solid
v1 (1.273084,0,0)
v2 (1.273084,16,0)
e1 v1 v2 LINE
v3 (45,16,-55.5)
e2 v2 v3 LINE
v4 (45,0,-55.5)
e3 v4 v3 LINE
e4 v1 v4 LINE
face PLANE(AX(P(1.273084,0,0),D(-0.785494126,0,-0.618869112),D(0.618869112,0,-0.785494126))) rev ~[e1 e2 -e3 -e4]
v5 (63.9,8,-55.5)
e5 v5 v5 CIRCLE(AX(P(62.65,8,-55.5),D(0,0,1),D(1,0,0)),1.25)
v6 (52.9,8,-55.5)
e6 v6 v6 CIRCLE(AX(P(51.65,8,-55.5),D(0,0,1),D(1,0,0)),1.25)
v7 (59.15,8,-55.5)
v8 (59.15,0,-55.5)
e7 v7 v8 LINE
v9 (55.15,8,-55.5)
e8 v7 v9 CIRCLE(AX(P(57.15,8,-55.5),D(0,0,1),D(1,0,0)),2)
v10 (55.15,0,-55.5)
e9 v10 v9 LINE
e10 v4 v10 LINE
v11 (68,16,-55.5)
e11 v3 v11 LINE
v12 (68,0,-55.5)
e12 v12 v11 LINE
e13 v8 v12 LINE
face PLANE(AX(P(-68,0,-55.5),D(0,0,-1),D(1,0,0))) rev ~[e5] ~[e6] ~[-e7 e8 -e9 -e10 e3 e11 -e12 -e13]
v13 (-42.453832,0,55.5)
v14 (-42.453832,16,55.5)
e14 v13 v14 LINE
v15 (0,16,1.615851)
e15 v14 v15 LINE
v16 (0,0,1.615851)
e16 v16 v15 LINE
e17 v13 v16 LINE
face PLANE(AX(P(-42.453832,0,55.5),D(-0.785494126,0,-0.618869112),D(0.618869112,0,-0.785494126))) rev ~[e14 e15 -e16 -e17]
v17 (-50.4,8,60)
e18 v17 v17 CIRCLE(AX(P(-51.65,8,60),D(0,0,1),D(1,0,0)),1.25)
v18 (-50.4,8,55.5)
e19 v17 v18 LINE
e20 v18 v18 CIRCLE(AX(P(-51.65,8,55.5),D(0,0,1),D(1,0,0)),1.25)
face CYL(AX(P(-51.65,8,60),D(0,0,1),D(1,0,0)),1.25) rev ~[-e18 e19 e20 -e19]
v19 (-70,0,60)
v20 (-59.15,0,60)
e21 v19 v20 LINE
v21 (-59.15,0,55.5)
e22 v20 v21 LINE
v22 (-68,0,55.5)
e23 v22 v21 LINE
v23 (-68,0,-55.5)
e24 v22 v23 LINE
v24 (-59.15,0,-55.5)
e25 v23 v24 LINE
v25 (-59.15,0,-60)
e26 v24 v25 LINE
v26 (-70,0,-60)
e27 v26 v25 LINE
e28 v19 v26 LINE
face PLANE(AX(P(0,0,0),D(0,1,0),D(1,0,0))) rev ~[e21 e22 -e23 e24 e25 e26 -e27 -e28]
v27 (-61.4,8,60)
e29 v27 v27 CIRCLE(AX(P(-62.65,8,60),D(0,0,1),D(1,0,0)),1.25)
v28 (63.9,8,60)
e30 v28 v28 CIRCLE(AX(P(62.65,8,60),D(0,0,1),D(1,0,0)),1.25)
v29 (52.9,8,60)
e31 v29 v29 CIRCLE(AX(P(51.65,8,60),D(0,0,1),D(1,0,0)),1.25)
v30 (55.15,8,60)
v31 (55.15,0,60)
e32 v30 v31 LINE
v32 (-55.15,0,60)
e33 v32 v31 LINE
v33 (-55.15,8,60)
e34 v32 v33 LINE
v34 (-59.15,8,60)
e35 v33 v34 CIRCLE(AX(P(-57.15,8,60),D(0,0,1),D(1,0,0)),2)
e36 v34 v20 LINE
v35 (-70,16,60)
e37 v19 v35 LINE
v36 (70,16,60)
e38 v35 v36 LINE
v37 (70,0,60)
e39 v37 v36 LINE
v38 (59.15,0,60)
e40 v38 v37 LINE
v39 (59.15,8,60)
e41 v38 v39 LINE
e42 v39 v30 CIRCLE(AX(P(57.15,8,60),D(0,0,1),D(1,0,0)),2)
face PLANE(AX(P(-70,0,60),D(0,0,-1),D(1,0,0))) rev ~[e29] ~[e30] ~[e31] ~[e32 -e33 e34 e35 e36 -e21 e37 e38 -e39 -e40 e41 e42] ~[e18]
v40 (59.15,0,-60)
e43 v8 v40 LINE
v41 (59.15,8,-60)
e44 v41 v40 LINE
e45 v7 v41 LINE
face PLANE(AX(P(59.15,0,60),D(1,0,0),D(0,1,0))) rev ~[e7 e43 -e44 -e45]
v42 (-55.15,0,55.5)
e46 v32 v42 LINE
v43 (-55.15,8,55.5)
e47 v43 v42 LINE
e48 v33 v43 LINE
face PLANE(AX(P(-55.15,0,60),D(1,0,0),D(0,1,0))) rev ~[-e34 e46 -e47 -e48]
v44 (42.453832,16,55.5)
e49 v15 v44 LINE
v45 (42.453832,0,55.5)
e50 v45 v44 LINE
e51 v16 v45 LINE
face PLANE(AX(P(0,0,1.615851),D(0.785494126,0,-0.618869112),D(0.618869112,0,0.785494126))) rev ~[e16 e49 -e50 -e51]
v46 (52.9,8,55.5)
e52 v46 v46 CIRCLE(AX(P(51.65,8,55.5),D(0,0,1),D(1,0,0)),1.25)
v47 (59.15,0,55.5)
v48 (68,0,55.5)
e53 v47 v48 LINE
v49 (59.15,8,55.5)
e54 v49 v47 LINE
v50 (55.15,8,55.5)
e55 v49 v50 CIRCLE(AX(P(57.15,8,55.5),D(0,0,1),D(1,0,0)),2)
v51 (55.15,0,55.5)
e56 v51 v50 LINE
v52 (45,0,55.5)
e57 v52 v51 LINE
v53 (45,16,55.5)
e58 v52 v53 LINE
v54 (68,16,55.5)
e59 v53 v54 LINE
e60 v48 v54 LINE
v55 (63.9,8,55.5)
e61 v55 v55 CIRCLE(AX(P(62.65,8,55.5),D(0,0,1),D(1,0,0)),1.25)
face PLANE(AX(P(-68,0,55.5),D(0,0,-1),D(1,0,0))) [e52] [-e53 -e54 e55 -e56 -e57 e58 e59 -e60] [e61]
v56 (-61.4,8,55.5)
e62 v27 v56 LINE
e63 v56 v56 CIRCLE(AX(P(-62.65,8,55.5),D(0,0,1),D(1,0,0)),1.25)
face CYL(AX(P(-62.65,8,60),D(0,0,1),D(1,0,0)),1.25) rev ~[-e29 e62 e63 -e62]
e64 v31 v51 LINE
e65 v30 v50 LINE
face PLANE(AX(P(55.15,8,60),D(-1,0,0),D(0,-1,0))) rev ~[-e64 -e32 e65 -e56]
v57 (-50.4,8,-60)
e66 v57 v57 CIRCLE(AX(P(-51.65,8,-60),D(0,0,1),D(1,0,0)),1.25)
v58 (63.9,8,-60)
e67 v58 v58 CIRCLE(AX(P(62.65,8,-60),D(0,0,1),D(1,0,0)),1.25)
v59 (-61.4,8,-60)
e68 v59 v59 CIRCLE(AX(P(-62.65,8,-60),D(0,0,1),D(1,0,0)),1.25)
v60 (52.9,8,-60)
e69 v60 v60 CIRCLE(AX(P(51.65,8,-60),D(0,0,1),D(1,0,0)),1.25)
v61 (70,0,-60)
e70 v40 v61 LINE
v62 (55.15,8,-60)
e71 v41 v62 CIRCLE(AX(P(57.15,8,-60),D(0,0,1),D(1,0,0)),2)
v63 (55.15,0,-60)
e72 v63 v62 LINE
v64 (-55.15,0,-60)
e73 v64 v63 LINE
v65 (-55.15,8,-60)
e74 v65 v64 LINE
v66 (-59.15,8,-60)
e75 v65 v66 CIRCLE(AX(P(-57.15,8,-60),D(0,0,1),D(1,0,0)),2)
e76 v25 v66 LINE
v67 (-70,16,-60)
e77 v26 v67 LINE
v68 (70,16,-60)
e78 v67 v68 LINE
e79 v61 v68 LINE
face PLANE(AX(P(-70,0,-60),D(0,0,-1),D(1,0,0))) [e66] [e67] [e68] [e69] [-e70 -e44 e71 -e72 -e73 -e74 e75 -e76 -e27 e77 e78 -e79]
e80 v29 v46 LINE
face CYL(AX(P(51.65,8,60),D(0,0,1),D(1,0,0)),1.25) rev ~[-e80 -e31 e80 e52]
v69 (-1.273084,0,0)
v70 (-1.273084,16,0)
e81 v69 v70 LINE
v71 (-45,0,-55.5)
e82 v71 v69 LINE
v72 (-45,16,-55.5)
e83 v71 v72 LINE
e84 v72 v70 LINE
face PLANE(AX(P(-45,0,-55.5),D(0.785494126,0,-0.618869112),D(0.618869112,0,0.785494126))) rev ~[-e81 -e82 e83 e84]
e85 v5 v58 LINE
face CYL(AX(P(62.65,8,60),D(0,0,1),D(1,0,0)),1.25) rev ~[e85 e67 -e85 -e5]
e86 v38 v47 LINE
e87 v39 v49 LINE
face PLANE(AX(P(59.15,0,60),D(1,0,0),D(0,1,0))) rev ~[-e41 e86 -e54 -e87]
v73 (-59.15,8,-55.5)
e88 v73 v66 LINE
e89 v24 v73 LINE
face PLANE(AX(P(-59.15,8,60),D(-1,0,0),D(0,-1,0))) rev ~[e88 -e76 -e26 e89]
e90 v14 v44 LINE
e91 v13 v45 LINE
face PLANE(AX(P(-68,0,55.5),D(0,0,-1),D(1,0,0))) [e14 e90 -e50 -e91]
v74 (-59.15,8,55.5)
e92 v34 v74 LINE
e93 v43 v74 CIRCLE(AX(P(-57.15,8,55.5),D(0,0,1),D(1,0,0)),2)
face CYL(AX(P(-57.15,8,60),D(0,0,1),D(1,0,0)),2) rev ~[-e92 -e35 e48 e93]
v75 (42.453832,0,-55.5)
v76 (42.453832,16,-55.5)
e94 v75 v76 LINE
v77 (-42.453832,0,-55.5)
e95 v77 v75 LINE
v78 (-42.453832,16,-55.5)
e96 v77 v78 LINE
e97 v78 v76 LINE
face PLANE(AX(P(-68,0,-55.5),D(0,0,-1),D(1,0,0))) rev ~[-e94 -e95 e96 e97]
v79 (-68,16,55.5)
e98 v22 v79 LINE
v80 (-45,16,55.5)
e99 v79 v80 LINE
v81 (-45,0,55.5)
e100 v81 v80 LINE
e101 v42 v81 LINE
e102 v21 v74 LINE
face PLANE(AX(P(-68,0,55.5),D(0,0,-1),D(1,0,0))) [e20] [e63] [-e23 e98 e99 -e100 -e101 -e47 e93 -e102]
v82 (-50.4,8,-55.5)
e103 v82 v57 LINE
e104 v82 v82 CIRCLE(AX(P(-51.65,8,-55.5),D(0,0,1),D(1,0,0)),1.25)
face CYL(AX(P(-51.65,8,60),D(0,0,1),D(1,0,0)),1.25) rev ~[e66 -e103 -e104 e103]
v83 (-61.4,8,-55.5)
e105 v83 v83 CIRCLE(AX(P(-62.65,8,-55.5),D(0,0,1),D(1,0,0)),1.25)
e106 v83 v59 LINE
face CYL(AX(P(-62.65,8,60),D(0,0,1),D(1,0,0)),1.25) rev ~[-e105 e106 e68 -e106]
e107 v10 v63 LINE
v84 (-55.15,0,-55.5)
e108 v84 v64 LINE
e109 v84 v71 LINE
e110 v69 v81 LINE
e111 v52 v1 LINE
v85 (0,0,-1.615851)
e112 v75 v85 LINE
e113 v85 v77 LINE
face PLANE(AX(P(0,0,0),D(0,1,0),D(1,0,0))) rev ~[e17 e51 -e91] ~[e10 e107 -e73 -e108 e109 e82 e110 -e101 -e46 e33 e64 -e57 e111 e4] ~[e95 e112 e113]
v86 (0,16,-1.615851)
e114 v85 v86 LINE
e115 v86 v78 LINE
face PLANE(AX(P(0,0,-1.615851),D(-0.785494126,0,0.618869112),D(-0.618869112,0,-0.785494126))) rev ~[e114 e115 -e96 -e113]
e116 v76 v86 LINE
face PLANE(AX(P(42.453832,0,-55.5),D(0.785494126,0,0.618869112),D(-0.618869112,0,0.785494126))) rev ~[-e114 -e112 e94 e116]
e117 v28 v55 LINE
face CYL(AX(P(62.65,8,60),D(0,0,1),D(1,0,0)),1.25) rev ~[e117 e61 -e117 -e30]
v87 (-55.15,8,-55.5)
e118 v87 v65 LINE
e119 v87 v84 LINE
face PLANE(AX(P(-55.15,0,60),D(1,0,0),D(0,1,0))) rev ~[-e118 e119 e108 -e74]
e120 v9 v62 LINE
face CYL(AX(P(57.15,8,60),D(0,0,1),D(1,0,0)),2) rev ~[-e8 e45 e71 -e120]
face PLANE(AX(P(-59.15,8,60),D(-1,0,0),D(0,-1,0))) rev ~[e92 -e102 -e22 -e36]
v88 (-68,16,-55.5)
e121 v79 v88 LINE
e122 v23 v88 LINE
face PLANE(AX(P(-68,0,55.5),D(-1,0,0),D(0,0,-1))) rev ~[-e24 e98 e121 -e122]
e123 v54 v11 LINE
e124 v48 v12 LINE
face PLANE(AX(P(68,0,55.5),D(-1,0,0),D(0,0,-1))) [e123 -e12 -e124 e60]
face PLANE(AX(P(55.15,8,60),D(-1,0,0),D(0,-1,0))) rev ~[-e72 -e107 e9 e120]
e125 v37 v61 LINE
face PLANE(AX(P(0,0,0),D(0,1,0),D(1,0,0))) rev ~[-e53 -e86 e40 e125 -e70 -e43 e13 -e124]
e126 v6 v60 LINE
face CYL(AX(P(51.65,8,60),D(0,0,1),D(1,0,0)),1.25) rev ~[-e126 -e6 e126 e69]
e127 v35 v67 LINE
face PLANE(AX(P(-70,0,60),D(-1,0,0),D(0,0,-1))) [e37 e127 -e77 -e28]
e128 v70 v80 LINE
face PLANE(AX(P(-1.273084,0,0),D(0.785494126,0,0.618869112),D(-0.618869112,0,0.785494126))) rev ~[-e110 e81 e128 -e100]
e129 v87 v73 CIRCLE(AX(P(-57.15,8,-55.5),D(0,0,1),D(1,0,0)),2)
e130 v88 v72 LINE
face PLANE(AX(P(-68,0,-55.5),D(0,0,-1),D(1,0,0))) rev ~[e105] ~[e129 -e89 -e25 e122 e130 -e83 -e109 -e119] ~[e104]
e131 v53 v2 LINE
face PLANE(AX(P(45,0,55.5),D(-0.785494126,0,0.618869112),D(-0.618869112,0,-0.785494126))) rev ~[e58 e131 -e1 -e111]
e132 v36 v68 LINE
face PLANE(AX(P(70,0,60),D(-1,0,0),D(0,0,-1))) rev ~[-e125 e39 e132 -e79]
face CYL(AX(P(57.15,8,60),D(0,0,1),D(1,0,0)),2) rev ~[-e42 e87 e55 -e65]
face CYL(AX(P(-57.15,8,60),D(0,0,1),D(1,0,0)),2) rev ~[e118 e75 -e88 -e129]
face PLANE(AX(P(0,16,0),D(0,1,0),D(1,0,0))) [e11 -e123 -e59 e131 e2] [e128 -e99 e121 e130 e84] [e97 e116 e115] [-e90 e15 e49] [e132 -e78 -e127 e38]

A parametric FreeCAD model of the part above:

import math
import FreeCAD as App
import Part
import Sketcher
from FreeCAD import Vector


def add_polygon(sketch, points):
    """Adds a closed chain of lines whose ends are joined by coincident constraints."""
    first, n = sketch.GeometryCount, len(points)
    for a, b in zip(points, points[1:] + points[:1]):
        sketch.addGeometry(Part.LineSegment(App.Vector(*a, 0), App.Vector(*b, 0)), False)
    for i in range(n):
        sketch.addConstraint(Sketcher.Constraint("Coincident", first + i, 2, first + (i + 1) % n, 1))

doc = App.newDocument("Part")
body = doc.addObject("PartDesign::Body", "Body")

sketch1 = doc.addObject("Sketcher::SketchObject", "Sketch")
body.addObject(sketch1)
sketch1.AttachmentSupport = (doc.XZ_Plane, [""])
sketch1.MapMode = "FlatFace"
add_polygon(sketch1, [(-70, -60), (-70, 60), (70, 60), (70, -60)])
add_polygon(sketch1, [(-45, 56), (-68, 56), (-68, -56), (-45, -56), (-1, 0)])
add_polygon(sketch1, [(42, 56), (-42, 56), (0, 2)])
add_polygon(sketch1, [(68, 56), (45, 56), (1, 0), (45, -56), (68, -56)])
add_polygon(sketch1, [(-42, -56), (42, -56), (0, -2)])
sketch1.addConstraint([
    Sketcher.Constraint("Vertical", 0),
    Sketcher.Constraint("Horizontal", 1),
    Sketcher.Constraint("Vertical", 2),
    Sketcher.Constraint("Horizontal", 3),
    Sketcher.Constraint("Horizontal", 4),
    Sketcher.Constraint("Vertical", 5),
    Sketcher.Constraint("Horizontal", 6),
    Sketcher.Constraint("Horizontal", 9),
    Sketcher.Constraint("Horizontal", 12),
    Sketcher.Constraint("Horizontal", 15),
    Sketcher.Constraint("Vertical", 16),
    Sketcher.Constraint("Horizontal", 17),
    Sketcher.Constraint("Symmetric", 0, 2, 2, 2, -1, 1),
    Sketcher.Constraint("Symmetric", 6, 2, 12, 2, -1, 1),
    Sketcher.Constraint("Symmetric", 7, 2, 13, 2, -1, 1),
    Sketcher.Constraint("Symmetric", 8, 2, 14, 2, -1, 1),
    Sketcher.Constraint("Symmetric", 9, 2, 17, 2, -1, 1),
    Sketcher.Constraint("Symmetric", 10, 2, 18, 2, -1, 1),
    Sketcher.Constraint("Symmetric", 8, 2, 12, 2, -2),
    Sketcher.Constraint("PointOnObject", 7, 2, -1),
    Sketcher.Constraint("PointOnObject", 10, 2, -2),
    Sketcher.Constraint("Parallel", 8, 10),
    Sketcher.Constraint("Parallel", 7, 11),
    Sketcher.Constraint("Parallel", 13, 19),
    Sketcher.Constraint("Horizontal", 8, 2, 9, 2),
    Sketcher.Constraint("Equal", 6, 12),
    Sketcher.Constraint("DistanceX", 1, 1, 1, 2, 140.0),
    Sketcher.Constraint("DistanceX", 4, 2, 4, 1, 23.0),
    Sketcher.Constraint("DistanceY", 0, 1, 0, 2, 120.0),
    Sketcher.Constraint("DistanceY", 5, 2, 5, 1, 111.0),
    Sketcher.Constraint("DistanceX", 4, 2, -1, 1, 68.0),
    Sketcher.Constraint("DistanceY", 18, 2, 10, 2, 3.231701),
    Sketcher.Constraint("Distance", 7, 70.656162),
])
pad1 = doc.addObject("PartDesign::Pad", "Pad")
body.addObject(pad1)
pad1.Profile = sketch1
pad1.Length = 16
pad1.Reversed = True

sketch2 = doc.addObject("Sketcher::SketchObject", "Sketch001")
body.addObject(sketch2)
sketch2.AttachmentSupport = (doc.XY_Plane, [""])
sketch2.MapMode = "FlatFace"
sketch2.AttachmentOffset = App.Placement(Vector(0, 0, 60), App.Rotation())
sketch2.addGeometry([
    Part.ArcOfCircle(Part.Circle(Vector(-57.1, 8, 0), Vector(0, 0, 1), 2), math.radians(0), math.radians(180)),
    Part.LineSegment(Vector(-59.1, 8, 0), Vector(-59.1, 0, 0)),
    Part.LineSegment(Vector(-59.1, 0, 0), Vector(-55.1, 0, 0)),
    Part.LineSegment(Vector(-55.1, 0, 0), Vector(-55.1, 8, 0)),
    Part.Circle(Vector(-51.6, 8, 0), Vector(0, 0, 1), 1.2),
    Part.Circle(Vector(-62.6, 8, 0), Vector(0, 0, 1), 1.2),
    Part.LineSegment(Vector(55.1, 8, 0), Vector(55.1, 0, 0)),
    Part.LineSegment(Vector(55.1, 0, 0), Vector(59.1, 0, 0)),
    Part.LineSegment(Vector(59.1, 0, 0), Vector(59.1, 8, 0)),
    Part.ArcOfCircle(Part.Circle(Vector(57.1, 8, 0), Vector(0, 0, 1), 2), math.radians(0), math.radians(180)),
    Part.Circle(Vector(51.6, 8, 0), Vector(0, 0, 1), 1.2),
    Part.Circle(Vector(62.6, 8, 0), Vector(0, 0, 1), 1.2),
], False)
sketch2.addConstraint([
    Sketcher.Constraint("Tangent", 0, 2, 1, 1),
    Sketcher.Constraint("Coincident", 1, 2, 2, 1),
    Sketcher.Constraint("Coincident", 2, 2, 3, 1),
    Sketcher.Constraint("Tangent", 3, 2, 0, 1),
    Sketcher.Constraint("Coincident", 6, 2, 7, 1),
    Sketcher.Constraint("Coincident", 7, 2, 8, 1),
    Sketcher.Constraint("Tangent", 8, 2, 9, 1),
    Sketcher.Constraint("Tangent", 9, 2, 6, 1),
    Sketcher.Constraint("Vertical", 1),
    Sketcher.Constraint("Horizontal", 2),
    Sketcher.Constraint("Vertical", 3),
    Sketcher.Constraint("Vertical", 6),
    Sketcher.Constraint("Horizontal", 7),
    Sketcher.Constraint("Vertical", 8),
    Sketcher.Constraint("Equal", 4, 5),
    Sketcher.Constraint("Equal", 0, 9),
    Sketcher.Constraint("Equal", 5, 10),
    Sketcher.Constraint("Equal", 10, 11),
    Sketcher.Constraint("Symmetric", 2, 2, 6, 2, -1, 1),
    Sketcher.Constraint("Symmetric", 4, 3, 10, 3, -2),
    Sketcher.Constraint("Symmetric", 5, 3, 11, 3, -2),
    Sketcher.Constraint("PointOnObject", 1, 2, -1),
    Sketcher.Constraint("Horizontal", 0, 3, 4, 3),
    Sketcher.Constraint("Horizontal", 4, 3, 5, 3),
    Sketcher.Constraint("Horizontal", 5, 3, 9, 3),
    Sketcher.Constraint("Radius", 0, 2.0),
    Sketcher.Constraint("Diameter", 4, 2.5),
    Sketcher.Constraint("DistanceY", 1, 2, 1, 1, 8.0),
    Sketcher.Constraint("DistanceX", 5, 3, 4, 3, 11.0),
    Sketcher.Constraint("DistanceX", 0, 3, 4, 3, 5.5),
    Sketcher.Constraint("DistanceX", 4, 3, 9, 3, 108.8),
])
pocket1 = doc.addObject("PartDesign::Pocket", "Pocket")
body.addObject(pocket1)
pocket1.Profile = sketch2
pocket1.Type = "ThroughAll"

doc.recompute()
